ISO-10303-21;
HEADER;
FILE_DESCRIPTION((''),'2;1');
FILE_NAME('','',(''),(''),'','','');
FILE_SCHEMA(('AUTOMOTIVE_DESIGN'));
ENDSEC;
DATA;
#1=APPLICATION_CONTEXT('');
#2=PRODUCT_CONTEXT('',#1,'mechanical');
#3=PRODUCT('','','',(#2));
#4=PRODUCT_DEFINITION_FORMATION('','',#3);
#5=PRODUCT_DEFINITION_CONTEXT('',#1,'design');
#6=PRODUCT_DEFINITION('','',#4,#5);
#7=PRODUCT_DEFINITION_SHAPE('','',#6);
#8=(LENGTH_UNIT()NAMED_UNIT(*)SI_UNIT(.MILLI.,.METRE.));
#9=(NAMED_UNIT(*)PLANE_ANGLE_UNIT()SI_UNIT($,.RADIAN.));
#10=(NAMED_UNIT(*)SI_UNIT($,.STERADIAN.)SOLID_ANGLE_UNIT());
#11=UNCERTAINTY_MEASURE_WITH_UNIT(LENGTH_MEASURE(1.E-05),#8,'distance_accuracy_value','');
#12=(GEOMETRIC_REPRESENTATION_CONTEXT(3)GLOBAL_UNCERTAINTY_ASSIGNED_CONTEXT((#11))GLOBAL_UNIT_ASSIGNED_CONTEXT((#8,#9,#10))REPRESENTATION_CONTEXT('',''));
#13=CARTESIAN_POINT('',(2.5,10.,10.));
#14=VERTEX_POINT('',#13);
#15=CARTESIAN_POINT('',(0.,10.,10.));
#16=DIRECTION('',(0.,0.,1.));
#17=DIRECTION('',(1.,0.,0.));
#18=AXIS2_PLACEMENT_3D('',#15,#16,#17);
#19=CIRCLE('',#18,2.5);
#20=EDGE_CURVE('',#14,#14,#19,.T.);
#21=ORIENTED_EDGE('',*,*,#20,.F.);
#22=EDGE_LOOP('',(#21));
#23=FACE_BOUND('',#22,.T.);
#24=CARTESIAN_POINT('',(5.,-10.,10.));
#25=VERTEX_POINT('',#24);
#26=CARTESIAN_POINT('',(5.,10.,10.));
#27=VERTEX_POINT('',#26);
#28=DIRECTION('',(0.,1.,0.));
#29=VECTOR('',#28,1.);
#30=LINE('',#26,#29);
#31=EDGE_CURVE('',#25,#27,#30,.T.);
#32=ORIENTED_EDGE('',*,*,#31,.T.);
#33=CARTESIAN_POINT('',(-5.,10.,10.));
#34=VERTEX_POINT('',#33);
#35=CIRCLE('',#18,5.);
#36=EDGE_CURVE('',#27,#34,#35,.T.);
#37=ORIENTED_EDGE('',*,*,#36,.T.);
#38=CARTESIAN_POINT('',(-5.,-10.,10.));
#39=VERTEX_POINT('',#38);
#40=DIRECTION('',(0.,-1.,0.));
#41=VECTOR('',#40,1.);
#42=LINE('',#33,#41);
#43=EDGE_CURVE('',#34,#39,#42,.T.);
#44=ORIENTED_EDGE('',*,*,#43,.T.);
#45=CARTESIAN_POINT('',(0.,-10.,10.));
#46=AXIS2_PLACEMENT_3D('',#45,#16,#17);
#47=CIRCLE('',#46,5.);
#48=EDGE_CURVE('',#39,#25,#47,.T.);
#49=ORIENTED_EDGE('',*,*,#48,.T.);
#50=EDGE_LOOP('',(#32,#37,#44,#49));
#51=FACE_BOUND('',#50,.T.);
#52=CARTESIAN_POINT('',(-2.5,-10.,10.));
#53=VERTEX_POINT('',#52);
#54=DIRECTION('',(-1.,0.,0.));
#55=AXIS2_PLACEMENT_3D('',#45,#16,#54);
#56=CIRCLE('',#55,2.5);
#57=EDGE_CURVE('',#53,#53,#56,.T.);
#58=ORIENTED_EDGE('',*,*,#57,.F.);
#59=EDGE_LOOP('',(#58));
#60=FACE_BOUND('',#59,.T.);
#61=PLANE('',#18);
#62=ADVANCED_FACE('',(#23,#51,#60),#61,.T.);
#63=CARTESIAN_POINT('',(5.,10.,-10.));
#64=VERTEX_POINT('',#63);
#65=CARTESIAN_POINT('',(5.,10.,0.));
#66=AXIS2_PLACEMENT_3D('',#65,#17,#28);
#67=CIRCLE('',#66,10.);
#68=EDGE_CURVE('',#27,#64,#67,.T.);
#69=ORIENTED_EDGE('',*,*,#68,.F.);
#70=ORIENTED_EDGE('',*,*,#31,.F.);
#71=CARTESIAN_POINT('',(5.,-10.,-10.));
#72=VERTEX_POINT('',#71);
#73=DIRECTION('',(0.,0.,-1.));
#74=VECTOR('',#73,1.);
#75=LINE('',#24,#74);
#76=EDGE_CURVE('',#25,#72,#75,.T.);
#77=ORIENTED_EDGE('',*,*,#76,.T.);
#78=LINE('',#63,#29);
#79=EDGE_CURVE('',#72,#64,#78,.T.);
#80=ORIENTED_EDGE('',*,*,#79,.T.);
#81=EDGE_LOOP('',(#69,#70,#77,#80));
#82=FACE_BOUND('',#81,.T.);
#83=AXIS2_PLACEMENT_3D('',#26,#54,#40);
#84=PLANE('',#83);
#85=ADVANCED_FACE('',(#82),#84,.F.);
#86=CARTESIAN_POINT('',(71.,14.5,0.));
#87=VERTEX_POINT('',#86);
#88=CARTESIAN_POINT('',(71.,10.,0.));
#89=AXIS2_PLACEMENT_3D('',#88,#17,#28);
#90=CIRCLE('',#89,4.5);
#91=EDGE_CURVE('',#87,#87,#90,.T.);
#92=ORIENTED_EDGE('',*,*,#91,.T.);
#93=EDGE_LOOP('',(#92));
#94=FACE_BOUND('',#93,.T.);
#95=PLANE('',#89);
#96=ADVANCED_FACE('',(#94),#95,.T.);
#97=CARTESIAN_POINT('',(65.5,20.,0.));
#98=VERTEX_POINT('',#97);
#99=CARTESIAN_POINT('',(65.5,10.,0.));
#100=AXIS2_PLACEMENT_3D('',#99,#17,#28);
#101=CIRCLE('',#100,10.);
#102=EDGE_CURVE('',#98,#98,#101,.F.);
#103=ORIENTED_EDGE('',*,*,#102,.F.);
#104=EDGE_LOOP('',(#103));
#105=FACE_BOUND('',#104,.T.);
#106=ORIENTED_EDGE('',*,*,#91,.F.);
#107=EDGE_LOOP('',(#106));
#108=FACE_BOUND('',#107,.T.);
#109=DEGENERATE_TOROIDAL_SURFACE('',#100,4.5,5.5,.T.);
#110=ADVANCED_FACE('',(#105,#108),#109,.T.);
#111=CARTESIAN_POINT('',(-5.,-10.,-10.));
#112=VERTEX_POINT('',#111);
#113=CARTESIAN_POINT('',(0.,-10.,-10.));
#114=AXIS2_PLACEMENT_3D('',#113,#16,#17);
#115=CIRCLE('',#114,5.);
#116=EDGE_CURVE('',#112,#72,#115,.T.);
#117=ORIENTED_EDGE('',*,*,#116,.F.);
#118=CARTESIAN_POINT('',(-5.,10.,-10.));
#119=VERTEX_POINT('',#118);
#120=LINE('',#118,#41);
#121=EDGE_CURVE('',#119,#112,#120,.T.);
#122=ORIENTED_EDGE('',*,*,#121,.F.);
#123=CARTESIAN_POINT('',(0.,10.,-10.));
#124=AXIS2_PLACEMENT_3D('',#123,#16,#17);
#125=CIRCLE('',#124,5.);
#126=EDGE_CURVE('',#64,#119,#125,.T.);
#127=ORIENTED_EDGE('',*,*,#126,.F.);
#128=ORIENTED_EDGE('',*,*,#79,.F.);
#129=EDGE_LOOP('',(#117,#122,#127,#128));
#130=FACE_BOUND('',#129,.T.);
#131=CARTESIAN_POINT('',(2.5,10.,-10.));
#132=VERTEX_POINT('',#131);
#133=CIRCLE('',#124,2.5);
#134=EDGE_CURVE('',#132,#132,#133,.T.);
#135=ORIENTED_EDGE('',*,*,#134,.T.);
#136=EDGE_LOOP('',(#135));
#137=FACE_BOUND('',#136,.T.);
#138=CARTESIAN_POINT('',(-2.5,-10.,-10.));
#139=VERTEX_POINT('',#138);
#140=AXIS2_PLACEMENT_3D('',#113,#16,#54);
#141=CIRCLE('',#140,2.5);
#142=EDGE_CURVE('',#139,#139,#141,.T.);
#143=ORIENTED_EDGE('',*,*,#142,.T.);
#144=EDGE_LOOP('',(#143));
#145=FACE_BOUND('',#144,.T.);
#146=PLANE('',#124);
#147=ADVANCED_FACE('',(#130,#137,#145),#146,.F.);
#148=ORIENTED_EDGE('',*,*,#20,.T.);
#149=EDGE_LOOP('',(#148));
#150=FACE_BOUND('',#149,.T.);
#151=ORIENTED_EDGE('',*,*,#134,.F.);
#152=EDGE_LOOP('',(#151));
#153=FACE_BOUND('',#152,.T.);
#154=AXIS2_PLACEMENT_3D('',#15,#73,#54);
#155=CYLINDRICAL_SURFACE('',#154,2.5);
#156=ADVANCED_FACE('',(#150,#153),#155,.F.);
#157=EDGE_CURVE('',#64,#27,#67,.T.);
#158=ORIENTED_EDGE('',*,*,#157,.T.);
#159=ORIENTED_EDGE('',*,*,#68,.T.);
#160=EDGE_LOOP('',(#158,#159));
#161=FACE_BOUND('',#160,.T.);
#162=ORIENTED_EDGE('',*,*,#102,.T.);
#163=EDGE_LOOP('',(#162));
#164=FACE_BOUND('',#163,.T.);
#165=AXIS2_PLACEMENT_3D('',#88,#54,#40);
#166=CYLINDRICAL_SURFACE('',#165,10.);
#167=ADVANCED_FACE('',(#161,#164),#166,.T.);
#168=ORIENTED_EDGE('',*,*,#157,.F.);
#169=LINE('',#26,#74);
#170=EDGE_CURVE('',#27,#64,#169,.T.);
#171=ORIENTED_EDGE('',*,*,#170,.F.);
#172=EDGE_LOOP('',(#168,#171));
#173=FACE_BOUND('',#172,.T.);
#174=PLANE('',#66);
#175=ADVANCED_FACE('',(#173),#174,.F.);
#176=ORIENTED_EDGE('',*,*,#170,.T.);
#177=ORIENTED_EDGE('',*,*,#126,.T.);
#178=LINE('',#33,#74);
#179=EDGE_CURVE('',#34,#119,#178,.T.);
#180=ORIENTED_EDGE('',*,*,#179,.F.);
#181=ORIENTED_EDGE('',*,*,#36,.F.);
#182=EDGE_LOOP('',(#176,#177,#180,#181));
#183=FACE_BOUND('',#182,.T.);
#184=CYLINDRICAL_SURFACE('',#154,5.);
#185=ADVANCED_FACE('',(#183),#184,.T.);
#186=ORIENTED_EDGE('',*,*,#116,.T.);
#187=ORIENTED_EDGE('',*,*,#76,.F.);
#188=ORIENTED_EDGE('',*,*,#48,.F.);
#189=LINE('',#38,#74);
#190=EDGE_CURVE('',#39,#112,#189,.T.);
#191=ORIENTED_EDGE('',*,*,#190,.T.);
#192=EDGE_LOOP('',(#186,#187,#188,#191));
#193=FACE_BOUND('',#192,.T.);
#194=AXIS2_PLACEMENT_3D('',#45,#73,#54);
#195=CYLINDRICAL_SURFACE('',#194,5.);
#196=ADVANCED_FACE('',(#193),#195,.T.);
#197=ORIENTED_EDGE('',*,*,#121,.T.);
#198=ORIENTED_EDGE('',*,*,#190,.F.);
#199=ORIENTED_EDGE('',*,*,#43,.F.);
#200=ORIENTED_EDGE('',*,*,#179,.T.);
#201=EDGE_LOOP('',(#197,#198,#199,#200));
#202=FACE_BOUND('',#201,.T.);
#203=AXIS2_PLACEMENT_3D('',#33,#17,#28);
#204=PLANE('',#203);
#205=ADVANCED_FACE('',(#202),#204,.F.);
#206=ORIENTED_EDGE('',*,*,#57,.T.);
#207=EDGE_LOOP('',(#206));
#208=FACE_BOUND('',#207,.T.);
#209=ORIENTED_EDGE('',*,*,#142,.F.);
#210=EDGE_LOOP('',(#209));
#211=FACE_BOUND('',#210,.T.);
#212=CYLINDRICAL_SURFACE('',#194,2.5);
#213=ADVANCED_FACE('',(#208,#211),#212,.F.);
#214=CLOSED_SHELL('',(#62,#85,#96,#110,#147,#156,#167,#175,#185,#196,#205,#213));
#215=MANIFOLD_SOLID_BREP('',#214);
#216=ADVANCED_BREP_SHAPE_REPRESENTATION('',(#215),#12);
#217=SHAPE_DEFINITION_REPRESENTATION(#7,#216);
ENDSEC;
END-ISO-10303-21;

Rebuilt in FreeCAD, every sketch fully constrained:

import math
import FreeCAD as App
import Part
import Sketcher

V = App.Vector
Q = App.Units.Quantity


def edges_at(feature, points):
    """Names of the edges that pass closest to the given points."""
    edges = feature.Shape.Edges
    near = lambda p: min(range(len(edges)), key=lambda i: edges[i].distToShape(Part.Vertex(*p))[0])
    return sorted({f"Edge{near(p) + 1}" for p in points})

doc = App.newDocument("Part")
body = doc.addObject("PartDesign::Body", "Body")

# Sketch on XY plane
sketch1 = body.newObject("Sketcher::SketchObject", "Sketch")
sketch1.AttachmentSupport = (doc.getObject("XY_Plane"), [""])
sketch1.MapMode = "FlatFace"
sketch1.addGeometry(Part.LineSegment(V(5, -10, 0), V(5, 10, 0)), False)
sketch1.addGeometry(Part.ArcOfCircle(Part.Circle(V(0, 10, 0), V(0, 0, 1), 5), math.radians(0), math.radians(180)), False)
sketch1.addGeometry(Part.LineSegment(V(-5, 10, 0), V(-5, -10, 0)), False)
sketch1.addGeometry(Part.ArcOfCircle(Part.Circle(V(0, -10, 0), V(0, 0, 1), 5), math.radians(180), math.radians(360)), False)
sketch1.addGeometry(Part.Circle(V(0, -10, 0), V(0, 0, 1), 2.5), False)
sketch1.addGeometry(Part.Circle(V(0, 10, 0), V(0, 0, 1), 2.5), False)
sketch1.addConstraint(Sketcher.Constraint("Tangent", 0, 2, 1, 1))
sketch1.addConstraint(Sketcher.Constraint("Tangent", 1, 2, 2, 1))
sketch1.addConstraint(Sketcher.Constraint("Tangent", 2, 2, 3, 1))
sketch1.addConstraint(Sketcher.Constraint("Tangent", 3, 2, 0, 1))
sketch1.addConstraint(Sketcher.Constraint("Vertical", 0))
sketch1.addConstraint(Sketcher.Constraint("Vertical", 2))
sketch1.addConstraint(Sketcher.Constraint("Coincident", 4, 3, 3, 3))
sketch1.addConstraint(Sketcher.Constraint("Coincident", 5, 3, 1, 3))
sketch1.addConstraint(Sketcher.Constraint("Equal", 4, 5))
sketch1.addConstraint(Sketcher.Constraint("Symmetric", 1, 3, 3, 3, -1, 1))
sketch1.addConstraint(Sketcher.Constraint("Diameter", 4, Q("5 mm")))
sketch1.addConstraint(Sketcher.Constraint("Radius", 1, Q("5 mm")))
sketch1.addConstraint(Sketcher.Constraint("DistanceY", 0, 1, 0, 2, Q("20 mm")))
pad1 = body.newObject("PartDesign::Pad", "Pad")
pad1.Profile = sketch1
pad1.Length = 20
pad1.Midplane = True

# Sketch on YZ plane
sketch2 = body.newObject("Sketcher::SketchObject", "Sketch001")
sketch2.AttachmentSupport = (doc.getObject("YZ_Plane"), [""])
sketch2.MapMode = "FlatFace"
sketch2.AttachmentOffset = App.Placement(V(0, 0, 5), App.Rotation())
sketch2.addGeometry(Part.Circle(V(10, 0, 0), V(0, 0, 1), 10), False)
sketch2.addConstraint(Sketcher.Constraint("PointOnObject", 0, 3, -1))
sketch2.addConstraint(Sketcher.Constraint("Diameter", 0, Q("20 mm")))
sketch2.addConstraint(Sketcher.Constraint("DistanceX", -1, 1, 0, 3, Q("10 mm")))
pad2 = body.newObject("PartDesign::Pad", "Pad001")
pad2.Profile = sketch2
pad2.Length = 66
doc.recompute()

fillet = body.newObject("PartDesign::Fillet", "Fillet")
fillet.Base = (pad2, edges_at(pad2, [(71, 10, 10)]))
fillet.Radius = 5.5

doc.recompute()
